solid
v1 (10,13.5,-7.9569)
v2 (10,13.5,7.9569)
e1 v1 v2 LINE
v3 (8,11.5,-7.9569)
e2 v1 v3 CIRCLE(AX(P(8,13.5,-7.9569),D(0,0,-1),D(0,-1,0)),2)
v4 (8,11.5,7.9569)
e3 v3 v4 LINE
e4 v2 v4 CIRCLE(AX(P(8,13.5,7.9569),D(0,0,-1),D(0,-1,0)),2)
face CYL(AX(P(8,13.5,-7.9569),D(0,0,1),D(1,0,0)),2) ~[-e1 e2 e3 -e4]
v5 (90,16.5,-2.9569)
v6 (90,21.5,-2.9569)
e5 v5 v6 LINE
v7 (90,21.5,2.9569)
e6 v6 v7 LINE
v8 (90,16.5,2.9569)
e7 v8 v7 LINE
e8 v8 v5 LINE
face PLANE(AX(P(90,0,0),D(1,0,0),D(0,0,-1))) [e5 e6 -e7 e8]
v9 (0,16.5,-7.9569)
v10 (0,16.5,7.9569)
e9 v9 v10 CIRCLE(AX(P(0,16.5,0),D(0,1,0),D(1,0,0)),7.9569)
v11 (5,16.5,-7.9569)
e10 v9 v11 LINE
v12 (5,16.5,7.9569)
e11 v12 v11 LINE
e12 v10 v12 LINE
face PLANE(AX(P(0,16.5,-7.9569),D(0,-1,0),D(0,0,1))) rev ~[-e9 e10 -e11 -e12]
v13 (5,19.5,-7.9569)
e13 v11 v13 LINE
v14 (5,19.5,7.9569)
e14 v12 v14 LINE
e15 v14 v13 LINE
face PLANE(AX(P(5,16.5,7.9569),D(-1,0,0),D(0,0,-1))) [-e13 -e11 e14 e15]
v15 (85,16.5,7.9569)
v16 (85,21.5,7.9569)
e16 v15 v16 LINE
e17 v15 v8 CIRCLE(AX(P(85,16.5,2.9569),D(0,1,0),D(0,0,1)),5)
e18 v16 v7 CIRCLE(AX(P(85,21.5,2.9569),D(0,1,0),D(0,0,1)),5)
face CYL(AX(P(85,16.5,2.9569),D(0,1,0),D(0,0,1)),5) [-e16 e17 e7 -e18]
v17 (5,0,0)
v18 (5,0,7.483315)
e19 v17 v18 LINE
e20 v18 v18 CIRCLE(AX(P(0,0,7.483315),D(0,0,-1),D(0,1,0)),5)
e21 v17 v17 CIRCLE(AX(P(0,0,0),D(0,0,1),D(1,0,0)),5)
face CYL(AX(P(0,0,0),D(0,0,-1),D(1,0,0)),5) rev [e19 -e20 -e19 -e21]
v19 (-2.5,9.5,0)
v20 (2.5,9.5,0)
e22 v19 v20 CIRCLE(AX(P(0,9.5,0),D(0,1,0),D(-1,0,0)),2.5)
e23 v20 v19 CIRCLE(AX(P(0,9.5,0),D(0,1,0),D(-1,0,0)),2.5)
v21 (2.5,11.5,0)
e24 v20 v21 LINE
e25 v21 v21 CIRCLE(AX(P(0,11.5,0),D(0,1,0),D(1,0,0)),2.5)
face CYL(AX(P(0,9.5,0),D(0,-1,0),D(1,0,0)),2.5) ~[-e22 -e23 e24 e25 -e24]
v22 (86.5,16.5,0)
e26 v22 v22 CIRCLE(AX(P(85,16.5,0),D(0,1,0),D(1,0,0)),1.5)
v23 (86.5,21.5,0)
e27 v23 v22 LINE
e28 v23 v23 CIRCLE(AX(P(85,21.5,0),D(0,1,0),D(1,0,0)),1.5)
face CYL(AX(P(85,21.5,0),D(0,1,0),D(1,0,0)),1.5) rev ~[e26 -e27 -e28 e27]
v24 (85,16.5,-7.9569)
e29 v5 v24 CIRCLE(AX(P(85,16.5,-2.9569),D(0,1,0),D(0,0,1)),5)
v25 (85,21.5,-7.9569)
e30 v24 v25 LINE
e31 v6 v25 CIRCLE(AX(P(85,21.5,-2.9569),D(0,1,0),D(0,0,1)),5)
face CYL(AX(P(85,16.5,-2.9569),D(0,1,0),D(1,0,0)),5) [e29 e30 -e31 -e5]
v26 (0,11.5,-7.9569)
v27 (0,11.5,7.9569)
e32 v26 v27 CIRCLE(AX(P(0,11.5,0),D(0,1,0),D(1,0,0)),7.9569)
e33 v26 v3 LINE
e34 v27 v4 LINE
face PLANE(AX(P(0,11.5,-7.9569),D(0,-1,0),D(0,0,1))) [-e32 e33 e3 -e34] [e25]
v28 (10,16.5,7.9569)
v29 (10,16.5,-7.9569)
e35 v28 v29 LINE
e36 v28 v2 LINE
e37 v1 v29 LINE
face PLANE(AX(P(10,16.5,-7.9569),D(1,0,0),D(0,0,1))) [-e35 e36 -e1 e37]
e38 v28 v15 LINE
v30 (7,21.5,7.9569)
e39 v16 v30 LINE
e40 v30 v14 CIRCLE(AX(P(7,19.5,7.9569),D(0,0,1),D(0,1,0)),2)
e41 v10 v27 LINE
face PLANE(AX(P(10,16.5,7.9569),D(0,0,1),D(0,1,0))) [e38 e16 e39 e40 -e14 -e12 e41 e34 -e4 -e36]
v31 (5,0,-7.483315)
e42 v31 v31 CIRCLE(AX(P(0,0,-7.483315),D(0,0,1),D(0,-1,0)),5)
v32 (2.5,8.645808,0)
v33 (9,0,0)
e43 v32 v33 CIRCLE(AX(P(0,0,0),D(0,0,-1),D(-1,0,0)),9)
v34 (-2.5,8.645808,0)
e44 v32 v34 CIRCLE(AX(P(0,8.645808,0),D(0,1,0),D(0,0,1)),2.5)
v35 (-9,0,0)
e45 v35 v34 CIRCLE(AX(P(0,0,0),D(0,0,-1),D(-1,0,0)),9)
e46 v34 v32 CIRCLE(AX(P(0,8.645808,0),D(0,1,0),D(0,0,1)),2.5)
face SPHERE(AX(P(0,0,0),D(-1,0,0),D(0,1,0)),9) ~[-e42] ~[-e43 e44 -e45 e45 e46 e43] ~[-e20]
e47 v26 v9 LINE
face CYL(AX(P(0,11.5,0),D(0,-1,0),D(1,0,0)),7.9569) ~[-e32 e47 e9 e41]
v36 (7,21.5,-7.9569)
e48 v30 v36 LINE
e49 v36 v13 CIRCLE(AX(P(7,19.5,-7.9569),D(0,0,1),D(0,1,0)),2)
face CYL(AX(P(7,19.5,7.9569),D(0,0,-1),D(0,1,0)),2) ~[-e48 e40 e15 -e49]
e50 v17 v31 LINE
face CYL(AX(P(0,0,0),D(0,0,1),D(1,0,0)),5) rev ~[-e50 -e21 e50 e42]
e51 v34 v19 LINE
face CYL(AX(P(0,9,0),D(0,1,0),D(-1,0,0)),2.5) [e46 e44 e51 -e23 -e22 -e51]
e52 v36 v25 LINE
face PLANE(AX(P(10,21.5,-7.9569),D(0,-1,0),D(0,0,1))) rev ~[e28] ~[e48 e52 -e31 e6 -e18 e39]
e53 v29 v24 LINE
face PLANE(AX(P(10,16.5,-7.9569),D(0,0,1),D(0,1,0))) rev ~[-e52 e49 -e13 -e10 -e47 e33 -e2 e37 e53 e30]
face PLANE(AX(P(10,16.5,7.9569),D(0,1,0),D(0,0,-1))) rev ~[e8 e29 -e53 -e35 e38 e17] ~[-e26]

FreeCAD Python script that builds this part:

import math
import FreeCAD as App
import Part
import Sketcher
from FreeCAD import Vector


def edges_at(feature, points):
    """Names of the edges that pass closest to the given points."""
    edges = feature.Shape.Edges
    near = lambda p: min(range(len(edges)), key=lambda i: edges[i].distToShape(Part.Vertex(*p))[0])
    return sorted({f"Edge{near(p) + 1}" for p in points})

doc = App.newDocument("Part")
body = doc.addObject("PartDesign::Body", "Body")

sketch1 = doc.addObject("Sketcher::SketchObject", "Sketch")
body.addObject(sketch1)
sketch1.AttachmentSupport = (doc.XY_Plane, [""])
sketch1.MapMode = "FlatFace"
sketch1.addGeometry(Part.LineSegment(Vector(-9, 0, 0), Vector(9, 0, 0)), False)
sketch1.addGeometry(Part.ArcOfCircle(Part.Circle(Vector(0, 0, 0), Vector(0, 0, 1), 9), math.radians(0), math.radians(180)), False)
sketch1.addConstraint(Sketcher.Constraint("Coincident", 0, 1, 1, 2))
sketch1.addConstraint(Sketcher.Constraint("Coincident", 1, 1, 0, 2))
sketch1.addConstraint(Sketcher.Constraint("Horizontal", 0))
sketch1.addConstraint(Sketcher.Constraint("Coincident", 1, 3, -1, 1))
sketch1.addConstraint(Sketcher.Constraint("PointOnObject", 0, 1, -1))
sketch1.addConstraint(Sketcher.Constraint("Radius", 1, 9.0))
revolution = doc.addObject("PartDesign::Revolution", "Revolution")
body.addObject(revolution)
revolution.Profile = sketch1
revolution.ReferenceAxis = (sketch1, ["H_Axis"])
revolution.Angle = 360

sketch2 = doc.addObject("Sketcher::SketchObject", "Sketch001")
body.addObject(sketch2)
sketch2.AttachmentSupport = (doc.XZ_Plane, [""])
sketch2.MapMode = "FlatFace"
sketch2.AttachmentOffset = App.Placement(Vector(0, 0, -9), App.Rotation())
sketch2.addGeometry(Part.Circle(Vector(0, 0, 0), Vector(0, 0, 1), 2.5), False)
sketch2.addConstraint(Sketcher.Constraint("Coincident", 0, 3, -1, 1))
sketch2.addConstraint(Sketcher.Constraint("Diameter", 0, 5.0))
pad1 = doc.addObject("PartDesign::Pad", "Pad")
body.addObject(pad1)
pad1.Profile = sketch2
pad1.Length = 1
pad1.Midplane = True

sketch3 = doc.addObject("Sketcher::SketchObject", "Sketch002")
body.addObject(sketch3)
sketch3.AttachmentSupport = (doc.XZ_Plane, [""])
sketch3.MapMode = "FlatFace"
sketch3.AttachmentOffset = App.Placement(Vector(0, 0, -9.5), App.Rotation())
sketch3.addGeometry(Part.Circle(Vector(0, 0, 0), Vector(0, 0, 1), 2.5), False)
sketch3.addConstraint(Sketcher.Constraint("Coincident", 0, 3, -1, 1))
sketch3.addConstraint(Sketcher.Constraint("Diameter", 0, 5.0))
pad2 = doc.addObject("PartDesign::Pad", "Pad001")
body.addObject(pad2)
pad2.Profile = sketch3
pad2.Length = 2
pad2.Reversed = True

sketch4 = doc.addObject("Sketcher::SketchObject", "Sketch003")
body.addObject(sketch4)
sketch4.AttachmentSupport = (doc.XY_Plane, [""])
sketch4.MapMode = "FlatFace"
sketch4.addGeometry(Part.Circle(Vector(0, 0, 0), Vector(0, 0, 1), 5), False)
sketch4.addConstraint(Sketcher.Constraint("Coincident", 0, 3, -1, 1))
sketch4.addConstraint(Sketcher.Constraint("Diameter", 0, 10.0))
pocket1 = doc.addObject("PartDesign::Pocket", "Pocket")
body.addObject(pocket1)
pocket1.Profile = sketch4
pocket1.Length = 20
pocket1.Midplane = True

sketch5 = doc.addObject("Sketcher::SketchObject", "Sketch004")
body.addObject(sketch5)
sketch5.AttachmentSupport = (doc.XZ_Plane, [""])
sketch5.MapMode = "FlatFace"
sketch5.AttachmentOffset = App.Placement(Vector(0, 0, -11.5), App.Rotation())
sketch5.addGeometry(Part.Circle(Vector(0, 0, 0), Vector(0, 0, 1), 8), False)
sketch5.addConstraint(Sketcher.Constraint("Coincident", 0, 3, -1, 1))
sketch5.addConstraint(Sketcher.Constraint("Diameter", 0, 15.9138))
pad3 = doc.addObject("PartDesign::Pad", "Pad002")
body.addObject(pad3)
pad3.Profile = sketch5
pad3.Length = 5
pad3.Reversed = True

sketch6 = doc.addObject("Sketcher::SketchObject", "Sketch005")
body.addObject(sketch6)
sketch6.AttachmentSupport = (doc.YZ_Plane, [""])
sketch6.MapMode = "FlatFace"
sketch6.addGeometry(Part.LineSegment(Vector(12, -8, 0), Vector(16, -8, 0)), False)
sketch6.addGeometry(Part.LineSegment(Vector(16, -8, 0), Vector(16, 8, 0)), False)
sketch6.addGeometry(Part.LineSegment(Vector(16, 8, 0), Vector(12, 8, 0)), False)
sketch6.addGeometry(Part.LineSegment(Vector(12, 8, 0), Vector(12, -8, 0)), False)
sketch6.addConstraint(Sketcher.Constraint("Coincident", 0, 2, 1, 1))
sketch6.addConstraint(Sketcher.Constraint("Coincident", 1, 2, 2, 1))
sketch6.addConstraint(Sketcher.Constraint("Coincident", 2, 2, 3, 1))
sketch6.addConstraint(Sketcher.Constraint("Coincident", 3, 2, 0, 1))
sketch6.addConstraint(Sketcher.Constraint("Horizontal", 0))
sketch6.addConstraint(Sketcher.Constraint("Vertical", 1))
sketch6.addConstraint(Sketcher.Constraint("Horizontal", 2))
sketch6.addConstraint(Sketcher.Constraint("Vertical", 3))
sketch6.addConstraint(Sketcher.Constraint("DistanceX", 0, 1, 0, 2, 5.0))
sketch6.addConstraint(Sketcher.Constraint("DistanceX", -1, 1, 0, 2, 16.5))
sketch6.addConstraint(Sketcher.Constraint("DistanceY", 1, 1, 1, 2, 15.9138))
sketch6.addConstraint(Sketcher.Constraint("DistanceY", 0, 2, -1, 1, 7.957))
pad4 = doc.addObject("PartDesign::Pad", "Pad003")
body.addObject(pad4)
pad4.Profile = sketch6
pad4.Length = 10

sketch7 = doc.addObject("Sketcher::SketchObject", "Sketch006")
body.addObject(sketch7)
sketch7.AttachmentSupport = (doc.XZ_Plane, [""])
sketch7.MapMode = "FlatFace"
sketch7.AttachmentOffset = App.Placement(Vector(0, 0, -16.5), App.Rotation())
sketch7.addGeometry(Part.LineSegment(Vector(10, 8, 0), Vector(10, -8, 0)), False)
sketch7.addGeometry(Part.LineSegment(Vector(10, -8, 0), Vector(5, -8, 0)), False)
sketch7.addGeometry(Part.LineSegment(Vector(5, -8, 0), Vector(5, 8, 0)), False)
sketch7.addGeometry(Part.LineSegment(Vector(5, 8, 0), Vector(10, 8, 0)), False)
sketch7.addConstraint(Sketcher.Constraint("Coincident", 0, 2, 1, 1))
sketch7.addConstraint(Sketcher.Constraint("Coincident", 1, 2, 2, 1))
sketch7.addConstraint(Sketcher.Constraint("Coincident", 2, 2, 3, 1))
sketch7.addConstraint(Sketcher.Constraint("Coincident", 3, 2, 0, 1))
sketch7.addConstraint(Sketcher.Constraint("Vertical", 0))
sketch7.addConstraint(Sketcher.Constraint("Horizontal", 1))
sketch7.addConstraint(Sketcher.Constraint("Vertical", 2))
sketch7.addConstraint(Sketcher.Constraint("Horizontal", 3))
sketch7.addConstraint(Sketcher.Constraint("DistanceX", 1, 2, 1, 1, 5.0))
sketch7.addConstraint(Sketcher.Constraint("DistanceX", -1, 1, 1, 2, 5.0))
sketch7.addConstraint(Sketcher.Constraint("DistanceY", 0, 2, 0, 1, 15.9138))
sketch7.addConstraint(Sketcher.Constraint("DistanceY", 0, 2, -1, 1, 7.957))
pad5 = doc.addObject("PartDesign::Pad", "Pad004")
body.addObject(pad5)
pad5.Profile = sketch7
pad5.Length = 5
pad5.Reversed = True

sketch8 = doc.addObject("Sketcher::SketchObject", "Sketch007")
body.addObject(sketch8)
sketch8.AttachmentSupport = (doc.YZ_Plane, [""])
sketch8.MapMode = "FlatFace"
sketch8.AttachmentOffset = App.Placement(Vector(0, 0, 10), App.Rotation())
sketch8.addGeometry(Part.LineSegment(Vector(16, 8, 0), Vector(16, -8, 0)), False)
sketch8.addGeometry(Part.LineSegment(Vector(16, -8, 0), Vector(22, -8, 0)), False)
sketch8.addGeometry(Part.LineSegment(Vector(22, -8, 0), Vector(22, 8, 0)), False)
sketch8.addGeometry(Part.LineSegment(Vector(22, 8, 0), Vector(16, 8, 0)), False)
sketch8.addConstraint(Sketcher.Constraint("Coincident", 0, 2, 1, 1))
sketch8.addConstraint(Sketcher.Constraint("Coincident", 1, 2, 2, 1))
sketch8.addConstraint(Sketcher.Constraint("Coincident", 2, 2, 3, 1))
sketch8.addConstraint(Sketcher.Constraint("Coincident", 3, 2, 0, 1))
sketch8.addConstraint(Sketcher.Constraint("Vertical", 0))
sketch8.addConstraint(Sketcher.Constraint("Horizontal", 1))
sketch8.addConstraint(Sketcher.Constraint("Vertical", 2))
sketch8.addConstraint(Sketcher.Constraint("Horizontal", 3))
sketch8.addConstraint(Sketcher.Constraint("DistanceX", 1, 1, 1, 2, 5.0))
sketch8.addConstraint(Sketcher.Constraint("DistanceX", -1, 1, 0, 2, 16.5))
sketch8.addConstraint(Sketcher.Constraint("DistanceY", 0, 2, 0, 1, 15.9138))
sketch8.addConstraint(Sketcher.Constraint("DistanceY", 0, 2, -1, 1, 7.957))
pad6 = doc.addObject("PartDesign::Pad", "Pad005")
body.addObject(pad6)
pad6.Profile = sketch8
pad6.Length = 80
doc.recompute()

fillet = doc.addObject("PartDesign::Fillet", "Fillet")
body.addObject(fillet)
fillet.Base = (pad6, edges_at(pad6, [(10, 11.5, 0), (5, 21.5, 0)]))
fillet.Radius = 2
doc.recompute()

fillet2 = doc.addObject("PartDesign::Fillet", "Fillet001")
body.addObject(fillet2)
fillet2.Base = (fillet, edges_at(fillet, [(90, 19, 7.957), (90, 19, -7.957)]))
fillet2.Radius = 5

sketch9 = doc.addObject("Sketcher::SketchObject", "Sketch008")
body.addObject(sketch9)
sketch9.AttachmentSupport = (doc.XZ_Plane, [""])
sketch9.MapMode = "FlatFace"
sketch9.AttachmentOffset = App.Placement(Vector(0, 0, -21.5), App.Rotation())
sketch9.addGeometry(Part.Circle(Vector(85, 0, 0), Vector(0, 0, 1), 1.5), False)
sketch9.addConstraint(Sketcher.Constraint("PointOnObject", 0, 3, -1))
sketch9.addConstraint(Sketcher.Constraint("Diameter", 0, 3.0))
sketch9.addConstraint(Sketcher.Constraint("DistanceX", -1, 1, 0, 3, 85.0))
pocket2 = doc.addObject("PartDesign::Pocket", "Pocket001")
body.addObject(pocket2)
pocket2.Profile = sketch9
pocket2.Length = 5
pocket2.Reversed = True

doc.recompute()
